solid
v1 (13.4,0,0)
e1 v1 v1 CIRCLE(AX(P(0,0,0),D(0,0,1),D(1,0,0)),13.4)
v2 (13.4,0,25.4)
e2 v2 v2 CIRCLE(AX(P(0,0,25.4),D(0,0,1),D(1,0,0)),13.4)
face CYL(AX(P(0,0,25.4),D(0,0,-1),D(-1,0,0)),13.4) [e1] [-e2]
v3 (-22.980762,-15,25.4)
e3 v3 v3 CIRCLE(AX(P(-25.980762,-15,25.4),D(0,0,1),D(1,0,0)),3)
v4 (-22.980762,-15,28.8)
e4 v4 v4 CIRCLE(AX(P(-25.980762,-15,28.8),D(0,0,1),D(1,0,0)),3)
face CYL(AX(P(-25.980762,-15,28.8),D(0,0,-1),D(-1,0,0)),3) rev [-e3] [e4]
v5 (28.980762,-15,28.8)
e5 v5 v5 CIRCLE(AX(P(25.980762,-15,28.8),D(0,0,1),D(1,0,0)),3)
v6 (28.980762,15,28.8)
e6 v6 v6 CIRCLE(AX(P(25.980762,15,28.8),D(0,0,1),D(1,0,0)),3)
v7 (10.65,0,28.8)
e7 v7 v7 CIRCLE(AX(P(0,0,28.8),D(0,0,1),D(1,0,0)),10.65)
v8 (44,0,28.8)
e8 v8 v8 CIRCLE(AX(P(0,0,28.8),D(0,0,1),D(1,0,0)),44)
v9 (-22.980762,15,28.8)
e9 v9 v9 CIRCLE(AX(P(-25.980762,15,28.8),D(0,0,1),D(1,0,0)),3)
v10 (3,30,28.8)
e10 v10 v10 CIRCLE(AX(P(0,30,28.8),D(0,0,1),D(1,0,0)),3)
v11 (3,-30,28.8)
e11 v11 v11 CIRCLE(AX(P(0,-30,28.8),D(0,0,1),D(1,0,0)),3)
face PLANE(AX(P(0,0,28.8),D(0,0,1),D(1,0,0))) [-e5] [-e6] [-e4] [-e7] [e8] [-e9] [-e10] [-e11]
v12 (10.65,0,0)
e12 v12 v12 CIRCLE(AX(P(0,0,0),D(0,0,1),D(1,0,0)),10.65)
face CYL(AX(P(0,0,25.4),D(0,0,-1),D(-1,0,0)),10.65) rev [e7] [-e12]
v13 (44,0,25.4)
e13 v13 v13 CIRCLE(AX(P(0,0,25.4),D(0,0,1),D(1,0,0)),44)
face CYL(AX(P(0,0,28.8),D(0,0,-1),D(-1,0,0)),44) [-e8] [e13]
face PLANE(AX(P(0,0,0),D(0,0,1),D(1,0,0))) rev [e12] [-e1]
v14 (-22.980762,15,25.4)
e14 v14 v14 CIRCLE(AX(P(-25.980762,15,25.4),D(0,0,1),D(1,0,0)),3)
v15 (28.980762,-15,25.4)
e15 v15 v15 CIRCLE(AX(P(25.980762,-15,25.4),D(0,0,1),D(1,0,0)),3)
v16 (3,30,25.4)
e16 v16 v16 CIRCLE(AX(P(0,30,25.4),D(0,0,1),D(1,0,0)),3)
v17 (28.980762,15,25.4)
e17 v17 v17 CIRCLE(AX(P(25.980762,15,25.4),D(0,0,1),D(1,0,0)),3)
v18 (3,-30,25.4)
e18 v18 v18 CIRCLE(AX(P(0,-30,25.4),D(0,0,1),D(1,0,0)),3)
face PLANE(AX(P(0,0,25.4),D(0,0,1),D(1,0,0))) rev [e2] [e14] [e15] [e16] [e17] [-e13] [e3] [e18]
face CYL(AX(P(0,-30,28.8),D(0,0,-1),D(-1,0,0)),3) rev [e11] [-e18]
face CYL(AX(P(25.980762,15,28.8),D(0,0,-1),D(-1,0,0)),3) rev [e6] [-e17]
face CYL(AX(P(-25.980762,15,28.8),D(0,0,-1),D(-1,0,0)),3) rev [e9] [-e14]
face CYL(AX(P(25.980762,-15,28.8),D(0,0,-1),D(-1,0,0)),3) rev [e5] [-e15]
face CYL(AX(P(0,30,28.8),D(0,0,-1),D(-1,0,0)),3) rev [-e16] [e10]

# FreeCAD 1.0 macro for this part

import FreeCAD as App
import Part
import Sketcher
Q = App.Units.Quantity

doc = App.newDocument("Part")
body = doc.addObject("PartDesign::Body", "Body")

# Sketch on XY plane
sketch1 = body.newObject("Sketcher::SketchObject", "Sketch")
sketch1.AttachmentSupport = (doc.getObject("XY_Plane"), [""])
sketch1.MapMode = "FlatFace"
sketch1.addGeometry([
    Part.Circle(App.Vector(0, 0, 0), App.Vector(0, 0, 1), 13),
    Part.Circle(App.Vector(0, 0, 0), App.Vector(0, 0, 1), 11),
], False)
sketch1.addConstraint([
    Sketcher.Constraint("Coincident", 0, 3, -1, 1),
    Sketcher.Constraint("Coincident", 1, 3, -1, 1),
    Sketcher.Constraint("Diameter", 0, Q("26.8 mm")),
    Sketcher.Constraint("Diameter", 1, Q("21.3 mm")),
])
pad1 = body.newObject("PartDesign::Pad", "Pad")
pad1.Profile = sketch1
pad1.Length = 25.4

# Sketch on XY plane
sketch2 = body.newObject("Sketcher::SketchObject", "Sketch001")
sketch2.AttachmentSupport = (doc.getObject("XY_Plane"), [""])
sketch2.MapMode = "FlatFace"
sketch2.AttachmentOffset = App.Placement(App.Vector(0, 0, 25.4), App.Rotation())
sketch2.addGeometry([
    Part.Circle(App.Vector(0, 0, 0), App.Vector(0, 0, 1), 44),  # 0
    Part.Circle(App.Vector(0, -30, 0), App.Vector(0, 0, 1), 3),  # 1
    Part.Circle(App.Vector(-26, -15, 0), App.Vector(0, 0, 1), 3),  # 2
    Part.Circle(App.Vector(26, -15, 0), App.Vector(0, 0, 1), 3),  # 3
    Part.Circle(App.Vector(-26, 15, 0), App.Vector(0, 0, 1), 3),  # 4
    Part.Circle(App.Vector(0, 0, 0), App.Vector(0, 0, 1), 10.7),  # 5
    Part.Circle(App.Vector(0, 30, 0), App.Vector(0, 0, 1), 3),  # 6
    Part.Circle(App.Vector(26, 15, 0), App.Vector(0, 0, 1), 3),  # 7
], False)
sketch2.addConstraint([
    Sketcher.Constraint("Coincident", 0, 3, -1, 1),
    Sketcher.Constraint("Coincident", 5, 3, -1, 1),
    Sketcher.Constraint("Equal", 1, 2),
    Sketcher.Constraint("Equal", 2, 3),
    Sketcher.Constraint("Equal", 3, 4),
    Sketcher.Constraint("Equal", 4, 6),
    Sketcher.Constraint("Equal", 6, 7),
    Sketcher.Constraint("Symmetric", 3, 3, 4, 3, -1, 1),
    Sketcher.Constraint("Symmetric", 1, 3, 6, 3, -1, 1),
    Sketcher.Constraint("Symmetric", 2, 3, 7, 3, -1, 1),
    Sketcher.Constraint("Symmetric", 2, 3, 3, 3, -2),
    Sketcher.Constraint("PointOnObject", 1, 3, -2),
    Sketcher.Constraint("Diameter", 0, Q("88 mm")),
    Sketcher.Constraint("Diameter", 1, Q("6 mm")),
    Sketcher.Constraint("Diameter", 5, Q("21.3 mm")),
    Sketcher.Constraint("DistanceY", 1, 3, -1, 1, Q("30 mm")),
    Sketcher.Constraint("DistanceY", 2, 3, -1, 1, Q("15 mm")),
    Sketcher.Constraint("DistanceX", 2, 3, -1, 1, Q("25.980762 mm")),
])
pad2 = body.newObject("PartDesign::Pad", "Pad001")
pad2.Profile = sketch2
pad2.Length = 3.4

doc.recompute()
